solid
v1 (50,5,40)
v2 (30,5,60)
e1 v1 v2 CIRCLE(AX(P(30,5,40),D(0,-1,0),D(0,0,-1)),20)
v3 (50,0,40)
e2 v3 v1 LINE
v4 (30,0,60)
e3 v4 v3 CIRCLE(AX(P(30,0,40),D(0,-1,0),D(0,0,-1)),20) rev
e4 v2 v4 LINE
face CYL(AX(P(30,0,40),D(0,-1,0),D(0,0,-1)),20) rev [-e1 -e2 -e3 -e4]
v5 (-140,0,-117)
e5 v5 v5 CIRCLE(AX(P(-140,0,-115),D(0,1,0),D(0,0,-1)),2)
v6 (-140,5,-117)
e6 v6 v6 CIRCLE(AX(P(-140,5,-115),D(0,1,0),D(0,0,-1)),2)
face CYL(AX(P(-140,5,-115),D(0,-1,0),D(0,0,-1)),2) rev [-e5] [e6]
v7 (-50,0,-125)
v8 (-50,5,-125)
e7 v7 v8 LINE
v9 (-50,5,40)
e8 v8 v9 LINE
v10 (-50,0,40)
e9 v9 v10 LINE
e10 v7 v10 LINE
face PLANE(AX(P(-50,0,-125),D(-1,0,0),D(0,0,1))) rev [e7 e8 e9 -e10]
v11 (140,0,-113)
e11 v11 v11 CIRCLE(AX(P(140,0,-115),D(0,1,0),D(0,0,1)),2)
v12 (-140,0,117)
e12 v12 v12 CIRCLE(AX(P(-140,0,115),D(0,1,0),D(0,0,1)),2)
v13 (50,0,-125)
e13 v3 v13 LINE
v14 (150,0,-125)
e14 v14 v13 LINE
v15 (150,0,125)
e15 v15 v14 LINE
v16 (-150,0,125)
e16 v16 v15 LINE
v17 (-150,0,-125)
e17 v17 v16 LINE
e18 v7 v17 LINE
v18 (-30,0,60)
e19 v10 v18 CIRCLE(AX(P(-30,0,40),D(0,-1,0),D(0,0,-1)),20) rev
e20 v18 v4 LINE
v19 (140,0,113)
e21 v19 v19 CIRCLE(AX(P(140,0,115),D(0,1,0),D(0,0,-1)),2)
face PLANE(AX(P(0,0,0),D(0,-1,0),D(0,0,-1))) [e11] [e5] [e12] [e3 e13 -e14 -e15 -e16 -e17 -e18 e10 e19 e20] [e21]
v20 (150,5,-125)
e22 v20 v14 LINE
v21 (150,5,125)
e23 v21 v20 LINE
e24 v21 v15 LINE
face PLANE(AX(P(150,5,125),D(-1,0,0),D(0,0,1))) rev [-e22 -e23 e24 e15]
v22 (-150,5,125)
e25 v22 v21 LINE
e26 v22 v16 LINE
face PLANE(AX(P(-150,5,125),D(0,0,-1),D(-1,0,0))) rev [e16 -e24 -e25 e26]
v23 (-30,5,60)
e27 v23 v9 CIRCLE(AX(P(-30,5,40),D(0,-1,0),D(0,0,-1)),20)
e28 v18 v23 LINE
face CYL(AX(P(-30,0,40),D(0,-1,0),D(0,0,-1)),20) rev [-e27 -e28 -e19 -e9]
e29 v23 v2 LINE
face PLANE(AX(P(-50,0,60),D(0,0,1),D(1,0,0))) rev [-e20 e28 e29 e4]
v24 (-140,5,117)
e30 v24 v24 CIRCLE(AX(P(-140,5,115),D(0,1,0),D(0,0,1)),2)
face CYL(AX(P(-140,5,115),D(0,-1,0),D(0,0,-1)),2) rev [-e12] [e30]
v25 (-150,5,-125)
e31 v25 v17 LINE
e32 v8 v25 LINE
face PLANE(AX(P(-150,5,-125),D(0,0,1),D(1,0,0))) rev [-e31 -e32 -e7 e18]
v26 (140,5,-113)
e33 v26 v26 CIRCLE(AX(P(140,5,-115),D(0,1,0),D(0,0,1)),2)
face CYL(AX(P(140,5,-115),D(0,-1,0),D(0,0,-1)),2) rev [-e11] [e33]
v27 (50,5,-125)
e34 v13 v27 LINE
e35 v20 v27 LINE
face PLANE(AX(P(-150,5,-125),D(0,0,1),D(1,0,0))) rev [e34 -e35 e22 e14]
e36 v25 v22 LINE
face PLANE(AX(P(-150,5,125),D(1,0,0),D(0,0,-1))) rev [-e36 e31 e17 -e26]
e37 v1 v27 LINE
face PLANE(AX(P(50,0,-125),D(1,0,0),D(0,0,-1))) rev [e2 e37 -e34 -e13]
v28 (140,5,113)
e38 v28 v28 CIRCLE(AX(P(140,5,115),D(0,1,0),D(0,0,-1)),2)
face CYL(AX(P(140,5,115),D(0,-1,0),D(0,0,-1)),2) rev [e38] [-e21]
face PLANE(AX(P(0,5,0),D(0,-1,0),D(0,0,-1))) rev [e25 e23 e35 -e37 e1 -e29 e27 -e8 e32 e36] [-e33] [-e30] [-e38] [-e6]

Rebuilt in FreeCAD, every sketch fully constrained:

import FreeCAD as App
import Part
import Sketcher
from FreeCAD import Vector


def edges_at(feature, points):
    """Names of the edges that pass closest to the given points."""
    edges = feature.Shape.Edges
    near = lambda p: min(range(len(edges)), key=lambda i: edges[i].distToShape(Part.Vertex(*p))[0])
    return sorted({f"Edge{near(p) + 1}" for p in points})

doc = App.newDocument("Part")
body = doc.addObject("PartDesign::Body", "Body")

sketch1 = doc.addObject("Sketcher::SketchObject", "Sketch")
body.addObject(sketch1)
sketch1.AttachmentSupport = (doc.XZ_Plane, [""])
sketch1.MapMode = "FlatFace"
sketch1.addGeometry([
    Part.LineSegment(Vector(-150, -125, 0), Vector(-150, 125, 0)),
    Part.LineSegment(Vector(-150, 125, 0), Vector(150, 125, 0)),
    Part.LineSegment(Vector(150, 125, 0), Vector(150, -125, 0)),
    Part.LineSegment(Vector(150, -125, 0), Vector(-150, -125, 0)),
    Part.Circle(Vector(-140, 115, 0), Vector(0, 0, 1), 2),
    Part.Circle(Vector(140, 115, 0), Vector(0, 0, 1), 2),
    Part.Circle(Vector(-140, -115, 0), Vector(0, 0, 1), 2),
    Part.Circle(Vector(140, -115, 0), Vector(0, 0, 1), 2),
], False)
sketch1.addConstraint([
    Sketcher.Constraint("Coincident", 0, 2, 1, 1),
    Sketcher.Constraint("Coincident", 1, 2, 2, 1),
    Sketcher.Constraint("Coincident", 2, 2, 3, 1),
    Sketcher.Constraint("Coincident", 3, 2, 0, 1),
    Sketcher.Constraint("Vertical", 0),
    Sketcher.Constraint("Horizontal", 1),
    Sketcher.Constraint("Vertical", 2),
    Sketcher.Constraint("Horizontal", 3),
    Sketcher.Constraint("Equal", 4, 5),
    Sketcher.Constraint("Equal", 5, 6),
    Sketcher.Constraint("Equal", 6, 7),
    Sketcher.Constraint("Symmetric", 5, 3, 6, 3, -1, 1),
    Sketcher.Constraint("Symmetric", 4, 3, 7, 3, -1, 1),
    Sketcher.Constraint("Symmetric", 0, 2, 2, 2, -1, 1),
    Sketcher.Constraint("Symmetric", 4, 3, 5, 3, -2),
    Sketcher.Constraint("Diameter", 4, 4.0),
    Sketcher.Constraint("DistanceX", 1, 1, 1, 2, 300.0),
    Sketcher.Constraint("DistanceY", 0, 1, 0, 2, 250.0),
    Sketcher.Constraint("DistanceX", 4, 3, -1, 1, 140.0),
    Sketcher.Constraint("DistanceY", -1, 1, 4, 3, 115.0),
])
pad1 = doc.addObject("PartDesign::Pad", "Pad")
body.addObject(pad1)
pad1.Profile = sketch1
pad1.Length = 5
pad1.Reversed = True

sketch2 = doc.addObject("Sketcher::SketchObject", "Sketch001")
body.addObject(sketch2)
sketch2.AttachmentSupport = (doc.XZ_Plane, [""])
sketch2.MapMode = "FlatFace"
sketch2.AttachmentOffset = App.Placement(Vector(0, 0, -5), App.Rotation())
sketch2.addGeometry([
    Part.LineSegment(Vector(-50, -125, 0), Vector(-50, 60, 0)),
    Part.LineSegment(Vector(-50, 60, 0), Vector(50, 60, 0)),
    Part.LineSegment(Vector(50, 60, 0), Vector(50, -125, 0)),
    Part.LineSegment(Vector(50, -125, 0), Vector(-50, -125, 0)),
], False)
sketch2.addConstraint([
    Sketcher.Constraint("Coincident", 0, 2, 1, 1),
    Sketcher.Constraint("Coincident", 1, 2, 2, 1),
    Sketcher.Constraint("Coincident", 2, 2, 3, 1),
    Sketcher.Constraint("Coincident", 3, 2, 0, 1),
    Sketcher.Constraint("Vertical", 0),
    Sketcher.Constraint("Horizontal", 1),
    Sketcher.Constraint("Vertical", 2),
    Sketcher.Constraint("Horizontal", 3),
    Sketcher.Constraint("DistanceX", 1, 1, 1, 2, 100.0),
    Sketcher.Constraint("DistanceY", 0, 1, 0, 2, 185.0),
    Sketcher.Constraint("DistanceX", 0, 2, -1, 1, 50.0),
    Sketcher.Constraint("DistanceY", -1, 1, 0, 2, 60.0),
])
pocket1 = doc.addObject("PartDesign::Pocket", "Pocket")
body.addObject(pocket1)
pocket1.Profile = sketch2
pocket1.Type = "ThroughAll"
pocket1.Reversed = True
doc.recompute()

fillet = doc.addObject("PartDesign::Fillet", "Fillet")
body.addObject(fillet)
fillet.Base = (pocket1, edges_at(pocket1, [(-50, 2.5, 60), (50, 2.5, 60)]))
fillet.Radius = 20

doc.recompute()
